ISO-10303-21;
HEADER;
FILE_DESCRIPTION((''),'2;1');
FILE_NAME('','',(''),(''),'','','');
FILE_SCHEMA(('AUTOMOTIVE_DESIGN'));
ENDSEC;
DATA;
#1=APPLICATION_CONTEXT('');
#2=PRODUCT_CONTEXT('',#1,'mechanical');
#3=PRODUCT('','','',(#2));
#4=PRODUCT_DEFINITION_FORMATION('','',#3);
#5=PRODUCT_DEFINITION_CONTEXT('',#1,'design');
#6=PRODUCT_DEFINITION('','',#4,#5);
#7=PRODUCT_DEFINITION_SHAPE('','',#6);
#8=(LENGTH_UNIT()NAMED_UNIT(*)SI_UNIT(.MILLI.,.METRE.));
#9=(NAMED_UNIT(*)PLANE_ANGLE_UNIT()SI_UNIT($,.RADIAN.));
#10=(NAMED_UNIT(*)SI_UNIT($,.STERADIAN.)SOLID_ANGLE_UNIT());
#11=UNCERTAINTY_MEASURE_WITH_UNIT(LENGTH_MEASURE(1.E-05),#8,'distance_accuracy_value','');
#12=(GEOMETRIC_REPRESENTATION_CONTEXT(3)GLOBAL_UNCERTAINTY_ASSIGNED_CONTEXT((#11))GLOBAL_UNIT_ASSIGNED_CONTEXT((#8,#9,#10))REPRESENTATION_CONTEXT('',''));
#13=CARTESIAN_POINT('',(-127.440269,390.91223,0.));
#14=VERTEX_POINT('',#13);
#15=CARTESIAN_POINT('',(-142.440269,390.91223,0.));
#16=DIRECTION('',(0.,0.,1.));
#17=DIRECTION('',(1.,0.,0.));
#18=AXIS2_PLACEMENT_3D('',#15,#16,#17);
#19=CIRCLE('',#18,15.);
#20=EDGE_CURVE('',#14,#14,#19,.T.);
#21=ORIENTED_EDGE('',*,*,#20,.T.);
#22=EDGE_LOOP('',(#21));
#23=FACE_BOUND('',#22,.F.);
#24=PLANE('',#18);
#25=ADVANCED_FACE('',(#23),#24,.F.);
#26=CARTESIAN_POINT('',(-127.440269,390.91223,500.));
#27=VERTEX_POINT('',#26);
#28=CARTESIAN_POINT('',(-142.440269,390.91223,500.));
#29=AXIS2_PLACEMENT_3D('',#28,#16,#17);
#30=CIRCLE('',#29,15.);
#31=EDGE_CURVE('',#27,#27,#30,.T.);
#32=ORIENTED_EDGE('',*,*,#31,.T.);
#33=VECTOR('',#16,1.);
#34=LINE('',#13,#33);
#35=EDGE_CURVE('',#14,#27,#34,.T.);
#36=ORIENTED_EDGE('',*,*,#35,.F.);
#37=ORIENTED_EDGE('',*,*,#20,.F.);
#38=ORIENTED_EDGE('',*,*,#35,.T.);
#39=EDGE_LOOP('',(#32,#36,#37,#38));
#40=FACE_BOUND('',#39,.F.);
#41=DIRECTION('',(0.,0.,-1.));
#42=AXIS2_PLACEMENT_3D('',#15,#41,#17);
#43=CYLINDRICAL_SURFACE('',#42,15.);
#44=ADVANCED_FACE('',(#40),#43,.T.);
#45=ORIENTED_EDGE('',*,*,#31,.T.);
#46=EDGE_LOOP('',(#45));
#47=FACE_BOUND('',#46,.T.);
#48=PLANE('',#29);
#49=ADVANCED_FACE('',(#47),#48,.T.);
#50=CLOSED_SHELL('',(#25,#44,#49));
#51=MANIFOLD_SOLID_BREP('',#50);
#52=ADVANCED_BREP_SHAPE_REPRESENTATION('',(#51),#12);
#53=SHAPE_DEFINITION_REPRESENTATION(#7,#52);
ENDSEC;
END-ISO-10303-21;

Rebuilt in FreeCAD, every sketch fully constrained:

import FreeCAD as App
import Part
import Sketcher

V = App.Vector
Q = App.Units.Quantity

doc = App.newDocument("Part")
body = doc.addObject("PartDesign::Body", "Body")

# Sketch on XY plane
sketch1 = doc.addObject("Sketcher::SketchObject", "Sketch")
body.addObject(sketch1)
sketch1.AttachmentSupport = (doc.XY_Plane, [""])
sketch1.MapMode = "FlatFace"
sketch1.addGeometry(Part.Circle(V(-142, 391, 0), V(0, 0, 1), 15), False)
sketch1.addConstraint([
    Sketcher.Constraint("Diameter", 0, Q("30 mm")),
    Sketcher.Constraint("DistanceX", 0, 3, -1, 1, Q("142.440269 mm")),
    Sketcher.Constraint("DistanceY", -1, 1, 0, 3, Q("390.91223 mm")),
])
pad1 = doc.addObject("PartDesign::Pad", "Pad")
body.addObject(pad1)
pad1.Profile = sketch1
pad1.Length = 500

doc.recompute()
